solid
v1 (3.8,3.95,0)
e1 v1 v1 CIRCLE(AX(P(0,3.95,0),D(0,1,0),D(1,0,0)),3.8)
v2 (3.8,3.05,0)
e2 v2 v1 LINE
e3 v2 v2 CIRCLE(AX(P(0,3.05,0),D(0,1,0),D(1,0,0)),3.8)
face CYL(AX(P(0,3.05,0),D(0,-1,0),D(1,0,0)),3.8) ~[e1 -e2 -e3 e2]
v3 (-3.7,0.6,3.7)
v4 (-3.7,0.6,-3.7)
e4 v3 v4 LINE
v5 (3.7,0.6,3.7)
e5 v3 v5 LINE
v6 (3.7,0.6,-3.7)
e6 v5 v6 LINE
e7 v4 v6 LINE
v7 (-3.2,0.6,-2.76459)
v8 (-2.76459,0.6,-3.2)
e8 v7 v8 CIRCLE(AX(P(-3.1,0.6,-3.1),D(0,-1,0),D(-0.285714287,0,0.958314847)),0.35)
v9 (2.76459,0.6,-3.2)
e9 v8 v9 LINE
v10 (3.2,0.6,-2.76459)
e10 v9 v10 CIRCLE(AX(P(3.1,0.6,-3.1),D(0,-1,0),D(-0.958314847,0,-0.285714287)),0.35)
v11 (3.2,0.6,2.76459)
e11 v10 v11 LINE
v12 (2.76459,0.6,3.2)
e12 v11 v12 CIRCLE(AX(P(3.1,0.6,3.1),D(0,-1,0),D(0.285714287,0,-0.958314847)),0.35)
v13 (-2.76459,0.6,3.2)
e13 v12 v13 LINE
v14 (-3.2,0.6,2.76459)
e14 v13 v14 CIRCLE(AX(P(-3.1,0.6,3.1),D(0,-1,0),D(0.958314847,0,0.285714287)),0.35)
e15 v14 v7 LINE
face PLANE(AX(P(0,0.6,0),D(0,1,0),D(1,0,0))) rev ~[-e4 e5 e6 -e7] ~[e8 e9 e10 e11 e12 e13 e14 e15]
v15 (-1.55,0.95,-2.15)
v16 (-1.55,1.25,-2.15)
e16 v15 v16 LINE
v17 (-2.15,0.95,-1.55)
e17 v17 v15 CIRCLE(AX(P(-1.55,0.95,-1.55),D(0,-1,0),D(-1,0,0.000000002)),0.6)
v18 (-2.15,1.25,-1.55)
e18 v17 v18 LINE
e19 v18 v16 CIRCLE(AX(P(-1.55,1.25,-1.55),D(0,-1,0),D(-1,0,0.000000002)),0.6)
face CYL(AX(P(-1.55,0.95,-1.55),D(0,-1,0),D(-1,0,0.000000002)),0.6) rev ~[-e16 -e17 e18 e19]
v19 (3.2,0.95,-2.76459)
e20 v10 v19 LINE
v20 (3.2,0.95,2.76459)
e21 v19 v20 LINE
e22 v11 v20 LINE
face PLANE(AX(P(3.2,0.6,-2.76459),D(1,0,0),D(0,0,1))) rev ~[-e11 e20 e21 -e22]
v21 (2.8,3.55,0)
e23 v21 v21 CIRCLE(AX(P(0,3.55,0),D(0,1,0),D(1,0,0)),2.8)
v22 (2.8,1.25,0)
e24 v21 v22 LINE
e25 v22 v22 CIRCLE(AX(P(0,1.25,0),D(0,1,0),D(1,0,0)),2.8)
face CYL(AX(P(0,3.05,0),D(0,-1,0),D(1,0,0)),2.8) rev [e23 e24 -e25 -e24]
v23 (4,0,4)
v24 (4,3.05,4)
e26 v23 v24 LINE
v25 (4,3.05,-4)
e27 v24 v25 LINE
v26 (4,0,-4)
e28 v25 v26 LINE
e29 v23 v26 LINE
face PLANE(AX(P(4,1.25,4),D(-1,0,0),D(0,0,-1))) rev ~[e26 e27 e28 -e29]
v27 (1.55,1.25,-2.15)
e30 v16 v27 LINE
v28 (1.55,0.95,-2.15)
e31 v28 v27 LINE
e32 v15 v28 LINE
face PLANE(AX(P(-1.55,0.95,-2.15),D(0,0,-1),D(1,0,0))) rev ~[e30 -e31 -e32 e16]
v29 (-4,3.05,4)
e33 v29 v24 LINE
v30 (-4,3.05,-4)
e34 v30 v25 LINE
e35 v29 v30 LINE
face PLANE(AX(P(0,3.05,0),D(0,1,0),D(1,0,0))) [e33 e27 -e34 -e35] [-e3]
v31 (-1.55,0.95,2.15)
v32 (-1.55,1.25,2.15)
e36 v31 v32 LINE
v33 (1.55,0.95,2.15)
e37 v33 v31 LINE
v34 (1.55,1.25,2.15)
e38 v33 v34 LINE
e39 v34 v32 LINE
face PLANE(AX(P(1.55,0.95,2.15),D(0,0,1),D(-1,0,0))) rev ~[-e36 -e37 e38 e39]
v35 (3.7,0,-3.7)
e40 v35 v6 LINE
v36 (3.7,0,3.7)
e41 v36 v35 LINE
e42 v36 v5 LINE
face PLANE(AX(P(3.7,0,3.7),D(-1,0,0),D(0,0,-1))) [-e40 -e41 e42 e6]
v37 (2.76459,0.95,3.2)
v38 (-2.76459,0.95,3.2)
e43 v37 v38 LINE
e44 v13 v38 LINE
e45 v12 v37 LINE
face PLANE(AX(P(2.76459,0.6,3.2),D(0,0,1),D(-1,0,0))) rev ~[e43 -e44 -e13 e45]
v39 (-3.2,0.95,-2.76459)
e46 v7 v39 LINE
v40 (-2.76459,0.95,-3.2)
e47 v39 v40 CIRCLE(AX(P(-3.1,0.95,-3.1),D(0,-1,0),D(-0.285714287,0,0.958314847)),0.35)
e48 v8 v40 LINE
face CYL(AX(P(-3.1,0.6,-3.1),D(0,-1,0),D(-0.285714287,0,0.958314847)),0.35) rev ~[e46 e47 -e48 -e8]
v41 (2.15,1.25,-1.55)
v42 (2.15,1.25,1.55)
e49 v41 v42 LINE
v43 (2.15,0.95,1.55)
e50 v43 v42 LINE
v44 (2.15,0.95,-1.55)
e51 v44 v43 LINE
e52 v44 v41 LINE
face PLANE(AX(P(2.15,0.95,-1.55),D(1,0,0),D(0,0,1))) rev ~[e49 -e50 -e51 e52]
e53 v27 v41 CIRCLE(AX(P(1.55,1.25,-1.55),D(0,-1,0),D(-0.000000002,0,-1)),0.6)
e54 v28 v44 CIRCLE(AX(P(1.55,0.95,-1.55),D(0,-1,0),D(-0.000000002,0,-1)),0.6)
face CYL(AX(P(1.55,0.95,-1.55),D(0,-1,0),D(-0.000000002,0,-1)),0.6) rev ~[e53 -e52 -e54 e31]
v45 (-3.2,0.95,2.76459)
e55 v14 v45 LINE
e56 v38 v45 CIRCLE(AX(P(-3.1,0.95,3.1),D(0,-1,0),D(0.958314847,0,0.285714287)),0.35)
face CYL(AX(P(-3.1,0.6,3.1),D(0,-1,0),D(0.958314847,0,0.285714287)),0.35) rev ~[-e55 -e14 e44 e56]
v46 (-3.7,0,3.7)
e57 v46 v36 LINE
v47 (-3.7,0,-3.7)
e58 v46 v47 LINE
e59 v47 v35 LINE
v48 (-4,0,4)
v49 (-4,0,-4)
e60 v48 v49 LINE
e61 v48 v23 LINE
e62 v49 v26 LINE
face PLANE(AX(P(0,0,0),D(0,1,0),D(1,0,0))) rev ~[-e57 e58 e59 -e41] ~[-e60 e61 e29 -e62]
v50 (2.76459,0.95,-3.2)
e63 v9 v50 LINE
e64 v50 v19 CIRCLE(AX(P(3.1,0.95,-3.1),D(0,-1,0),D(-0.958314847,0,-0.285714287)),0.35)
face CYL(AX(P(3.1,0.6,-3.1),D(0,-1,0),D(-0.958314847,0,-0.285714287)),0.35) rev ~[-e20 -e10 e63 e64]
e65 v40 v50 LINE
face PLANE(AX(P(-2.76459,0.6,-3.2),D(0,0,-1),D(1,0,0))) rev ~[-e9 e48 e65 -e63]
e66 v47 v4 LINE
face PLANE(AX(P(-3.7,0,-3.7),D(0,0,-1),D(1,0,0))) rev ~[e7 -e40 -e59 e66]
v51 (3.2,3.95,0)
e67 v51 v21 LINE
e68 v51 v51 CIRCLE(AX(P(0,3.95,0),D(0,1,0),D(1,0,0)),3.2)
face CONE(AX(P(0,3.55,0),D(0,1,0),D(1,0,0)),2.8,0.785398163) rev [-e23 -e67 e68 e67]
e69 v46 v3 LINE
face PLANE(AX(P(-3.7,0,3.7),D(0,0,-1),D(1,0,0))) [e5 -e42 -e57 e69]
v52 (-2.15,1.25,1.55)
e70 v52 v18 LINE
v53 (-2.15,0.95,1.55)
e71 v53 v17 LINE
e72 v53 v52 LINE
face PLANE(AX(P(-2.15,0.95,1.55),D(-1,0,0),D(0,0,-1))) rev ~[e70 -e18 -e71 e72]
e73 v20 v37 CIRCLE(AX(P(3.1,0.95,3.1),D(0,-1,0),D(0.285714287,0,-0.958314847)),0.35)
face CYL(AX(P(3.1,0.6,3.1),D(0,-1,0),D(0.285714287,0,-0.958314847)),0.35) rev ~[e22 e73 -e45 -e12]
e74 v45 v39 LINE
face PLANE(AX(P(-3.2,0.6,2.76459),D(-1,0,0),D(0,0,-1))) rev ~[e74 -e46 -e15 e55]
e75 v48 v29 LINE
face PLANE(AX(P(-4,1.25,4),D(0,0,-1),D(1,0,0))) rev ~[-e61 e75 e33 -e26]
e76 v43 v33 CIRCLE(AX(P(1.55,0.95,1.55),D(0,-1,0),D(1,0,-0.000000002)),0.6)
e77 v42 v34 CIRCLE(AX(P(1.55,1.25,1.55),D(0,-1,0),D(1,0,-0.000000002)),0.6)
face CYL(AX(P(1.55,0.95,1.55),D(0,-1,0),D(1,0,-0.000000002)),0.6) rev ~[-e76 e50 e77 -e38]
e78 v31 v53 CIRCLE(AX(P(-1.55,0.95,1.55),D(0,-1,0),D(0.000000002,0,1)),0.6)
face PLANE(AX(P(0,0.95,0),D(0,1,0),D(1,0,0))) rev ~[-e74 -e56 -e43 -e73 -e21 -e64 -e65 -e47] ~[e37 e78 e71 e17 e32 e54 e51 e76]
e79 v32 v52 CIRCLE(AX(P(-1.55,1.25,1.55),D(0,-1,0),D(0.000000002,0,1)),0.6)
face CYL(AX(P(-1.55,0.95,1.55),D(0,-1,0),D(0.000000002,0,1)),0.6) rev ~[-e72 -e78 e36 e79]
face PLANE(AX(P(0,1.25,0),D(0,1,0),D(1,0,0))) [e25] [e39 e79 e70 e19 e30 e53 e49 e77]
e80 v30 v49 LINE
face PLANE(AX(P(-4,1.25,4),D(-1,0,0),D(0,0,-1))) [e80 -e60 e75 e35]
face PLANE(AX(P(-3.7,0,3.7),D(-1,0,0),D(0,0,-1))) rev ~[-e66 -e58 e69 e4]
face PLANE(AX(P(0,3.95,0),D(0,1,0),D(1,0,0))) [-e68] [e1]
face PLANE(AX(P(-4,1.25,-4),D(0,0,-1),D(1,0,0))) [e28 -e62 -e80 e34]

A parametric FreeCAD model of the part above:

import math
import FreeCAD as App
import Part
import Sketcher
Q = App.Units.Quantity


def edges_at(feature, points):
    """Names of the edges that pass closest to the given points."""
    edges = feature.Shape.Edges
    near = lambda p: min(range(len(edges)), key=lambda i: edges[i].distToShape(Part.Vertex(*p))[0])
    return sorted({f"Edge{near(p) + 1}" for p in points})


def add_polygon(sketch, points):
    """Adds a closed chain of lines whose ends are joined by coincident constraints."""
    first, n = sketch.GeometryCount, len(points)
    for a, b in zip(points, points[1:] + points[:1]):
        sketch.addGeometry(Part.LineSegment(App.Vector(*a, 0), App.Vector(*b, 0)), False)
    for i in range(n):
        sketch.addConstraint(Sketcher.Constraint("Coincident", first + i, 2, first + (i + 1) % n, 1))

doc = App.newDocument("Part")
body = doc.addObject("PartDesign::Body", "Body")

sketch1 = body.newObject("Sketcher::SketchObject", "Sketch")
sketch1.AttachmentSupport = (doc.getObject("XZ_Plane"), [""])
sketch1.MapMode = "FlatFace"
add_polygon(sketch1, [(-4, -4), (-4, 4), (4, 4), (4, -4)])
add_polygon(sketch1, [(3.7, 3.7), (-3.7, 3.7), (-3.7, -3.7), (3.7, -3.7)])
sketch1.addConstraint(Sketcher.Constraint("Vertical", 0))
sketch1.addConstraint(Sketcher.Constraint("Horizontal", 1))
sketch1.addConstraint(Sketcher.Constraint("Vertical", 2))
sketch1.addConstraint(Sketcher.Constraint("Horizontal", 3))
sketch1.addConstraint(Sketcher.Constraint("Horizontal", 4))
sketch1.addConstraint(Sketcher.Constraint("Vertical", 5))
sketch1.addConstraint(Sketcher.Constraint("Horizontal", 6))
sketch1.addConstraint(Sketcher.Constraint("Vertical", 7))
sketch1.addConstraint(Sketcher.Constraint("Symmetric", 0, 2, 2, 2, -1, 1))
sketch1.addConstraint(Sketcher.Constraint("Symmetric", 4, 2, 6, 2, -1, 1))
sketch1.addConstraint(Sketcher.Constraint("Equal", 3, 0))
sketch1.addConstraint(Sketcher.Constraint("Equal", 6, 5))
sketch1.addConstraint(Sketcher.Constraint("DistanceX", 1, 1, 1, 2, Q("8 mm")))
sketch1.addConstraint(Sketcher.Constraint("DistanceX", 4, 2, 4, 1, Q("7.4 mm")))
pad1 = body.newObject("PartDesign::Pad", "Pad")
pad1.Profile = sketch1
pad1.Length = 0.6
pad1.Reversed = True

sketch2 = body.newObject("Sketcher::SketchObject", "Sketch001")
sketch2.AttachmentSupport = (doc.getObject("XZ_Plane"), [""])
sketch2.MapMode = "FlatFace"
sketch2.AttachmentOffset = App.Placement(App.Vector(0, 0, -0.6), App.Rotation())
add_polygon(sketch2, [(-4, -4), (-4, 4), (4, 4), (4, -4)])
sketch2.addGeometry(Part.ArcOfCircle(Part.Circle(App.Vector(-3.1, -3.1, 0), App.Vector(0, 0, 1), 0.35), math.radians(106.60155), math.radians(343.39845)), False)
sketch2.addGeometry(Part.LineSegment(App.Vector(-2.76459, -3.2, 0), App.Vector(2.76459, -3.2, 0)), False)
sketch2.addGeometry(Part.ArcOfCircle(Part.Circle(App.Vector(3.1, -3.1, 0), App.Vector(0, 0, 1), 0.35), math.radians(-163.39845), math.radians(73.39845)), False)
sketch2.addGeometry(Part.LineSegment(App.Vector(3.2, -2.76459, 0), App.Vector(3.2, 2.76459, 0)), False)
sketch2.addGeometry(Part.ArcOfCircle(Part.Circle(App.Vector(3.1, 3.1, 0), App.Vector(0, 0, 1), 0.35), math.radians(-73.39845), math.radians(163.39845)), False)
sketch2.addGeometry(Part.LineSegment(App.Vector(2.76459, 3.2, 0), App.Vector(-2.76459, 3.2, 0)), False)
sketch2.addGeometry(Part.ArcOfCircle(Part.Circle(App.Vector(-3.1, 3.1, 0), App.Vector(0, 0, 1), 0.35), math.radians(16.60155), math.radians(253.39845)), False)
sketch2.addGeometry(Part.LineSegment(App.Vector(-3.2, 2.76459, 0), App.Vector(-3.2, -2.76459, 0)), False)
sketch2.addConstraint(Sketcher.Constraint("Coincident", 4, 2, 5, 1))
sketch2.addConstraint(Sketcher.Constraint("Coincident", 5, 2, 6, 1))
sketch2.addConstraint(Sketcher.Constraint("Coincident", 6, 2, 7, 1))
sketch2.addConstraint(Sketcher.Constraint("Coincident", 7, 2, 8, 1))
sketch2.addConstraint(Sketcher.Constraint("Coincident", 8, 2, 9, 1))
sketch2.addConstraint(Sketcher.Constraint("Coincident", 9, 2, 10, 1))
sketch2.addConstraint(Sketcher.Constraint("Coincident", 10, 2, 11, 1))
sketch2.addConstraint(Sketcher.Constraint("Coincident", 11, 2, 4, 1))
sketch2.addConstraint(Sketcher.Constraint("Vertical", 0))
sketch2.addConstraint(Sketcher.Constraint("Horizontal", 1))
sketch2.addConstraint(Sketcher.Constraint("Vertical", 2))
sketch2.addConstraint(Sketcher.Constraint("Horizontal", 3))
sketch2.addConstraint(Sketcher.Constraint("Horizontal", 5))
sketch2.addConstraint(Sketcher.Constraint("Vertical", 7))
sketch2.addConstraint(Sketcher.Constraint("Horizontal", 9))
sketch2.addConstraint(Sketcher.Constraint("Vertical", 11))
sketch2.addConstraint(Sketcher.Constraint("Equal", 4, 6))
sketch2.addConstraint(Sketcher.Constraint("Equal", 6, 8))
sketch2.addConstraint(Sketcher.Constraint("Equal", 8, 10))
sketch2.addConstraint(Sketcher.Constraint("Symmetric", 4, 3, 8, 3, -1, 1))
sketch2.addConstraint(Sketcher.Constraint("Symmetric", 6, 3, 10, 3, -1, 1))
sketch2.addConstraint(Sketcher.Constraint("Symmetric", 0, 2, 2, 2, -1, 1))
sketch2.addConstraint(Sketcher.Constraint("Symmetric", 4, 3, 6, 3, -2))
sketch2.addConstraint(Sketcher.Constraint("Horizontal", 7, 2, 10, 2))
sketch2.addConstraint(Sketcher.Constraint("Vertical", 5, 2, 8, 2))
sketch2.addConstraint(Sketcher.Constraint("Equal", 3, 0))
sketch2.addConstraint(Sketcher.Constraint("Equal", 9, 7))
sketch2.addConstraint(Sketcher.Constraint("DistanceX", 1, 1, 1, 2, Q("8 mm")))
sketch2.addConstraint(Sketcher.Constraint("Radius", 4, Q("0.35 mm")))
sketch2.addConstraint(Sketcher.Constraint("DistanceX", 4, 3, -1, 1, Q("3.1 mm")))
sketch2.addConstraint(Sketcher.Constraint("DistanceY", 4, 3, -1, 1, Q("3.1 mm")))
sketch2.addConstraint(Sketcher.Constraint("DistanceY", 4, 2, -1, 1, Q("3.2 mm")))
pad2 = body.newObject("PartDesign::Pad", "Pad001")
pad2.Profile = sketch2
pad2.Length = 0.35
pad2.Reversed = True

sketch3 = body.newObject("Sketcher::SketchObject", "Sketch002")
sketch3.AttachmentSupport = (doc.getObject("XZ_Plane"), [""])
sketch3.MapMode = "FlatFace"
sketch3.AttachmentOffset = App.Placement(App.Vector(0, 0, -0.95), App.Rotation())
add_polygon(sketch3, [(-4, -4), (-4, 4), (4, 4), (4, -4)])
sketch3.addGeometry(Part.ArcOfCircle(Part.Circle(App.Vector(-1.55, -1.55, 0), App.Vector(0, 0, 1), 0.6), math.radians(180), math.radians(270)), False)
sketch3.addGeometry(Part.LineSegment(App.Vector(-1.55, -2.15, 0), App.Vector(1.55, -2.15, 0)), False)
sketch3.addGeometry(Part.ArcOfCircle(Part.Circle(App.Vector(1.55, -1.55, 0), App.Vector(0, 0, 1), 0.6), math.radians(-90), math.radians(0)), False)
sketch3.addGeometry(Part.LineSegment(App.Vector(2.15, -1.55, 0), App.Vector(2.15, 1.55, 0)), False)
sketch3.addGeometry(Part.ArcOfCircle(Part.Circle(App.Vector(1.55, 1.55, 0), App.Vector(0, 0, 1), 0.6), math.radians(0), math.radians(90)), False)
sketch3.addGeometry(Part.LineSegment(App.Vector(1.55, 2.15, 0), App.Vector(-1.55, 2.15, 0)), False)
sketch3.addGeometry(Part.ArcOfCircle(Part.Circle(App.Vector(-1.55, 1.55, 0), App.Vector(0, 0, 1), 0.6), math.radians(90), math.radians(180)), False)
sketch3.addGeometry(Part.LineSegment(App.Vector(-2.15, 1.55, 0), App.Vector(-2.15, -1.55, 0)), False)
sketch3.addConstraint(Sketcher.Constraint("Tangent", 4, 2, 5, 1))
sketch3.addConstraint(Sketcher.Constraint("Tangent", 5, 2, 6, 1))
sketch3.addConstraint(Sketcher.Constraint("Tangent", 6, 2, 7, 1))
sketch3.addConstraint(Sketcher.Constraint("Tangent", 7, 2, 8, 1))
sketch3.addConstraint(Sketcher.Constraint("Tangent", 8, 2, 9, 1))
sketch3.addConstraint(Sketcher.Constraint("Tangent", 9, 2, 10, 1))
sketch3.addConstraint(Sketcher.Constraint("Tangent", 10, 2, 11, 1))
sketch3.addConstraint(Sketcher.Constraint("Tangent", 11, 2, 4, 1))
sketch3.addConstraint(Sketcher.Constraint("Vertical", 0))
sketch3.addConstraint(Sketcher.Constraint("Horizontal", 1))
sketch3.addConstraint(Sketcher.Constraint("Vertical", 2))
sketch3.addConstraint(Sketcher.Constraint("Horizontal", 3))
sketch3.addConstraint(Sketcher.Constraint("Horizontal", 5))
sketch3.addConstraint(Sketcher.Constraint("Vertical", 7))
sketch3.addConstraint(Sketcher.Constraint("Horizontal", 9))
sketch3.addConstraint(Sketcher.Constraint("Vertical", 11))
sketch3.addConstraint(Sketcher.Constraint("Equal", 4, 6))
sketch3.addConstraint(Sketcher.Constraint("Equal", 6, 8))
sketch3.addConstraint(Sketcher.Constraint("Equal", 8, 10))
sketch3.addConstraint(Sketcher.Constraint("Symmetric", 4, 3, 8, 3, -1, 1))
sketch3.addConstraint(Sketcher.Constraint("Symmetric", 0, 2, 2, 2, -1, 1))
sketch3.addConstraint(Sketcher.Constraint("Equal", 3, 0))
sketch3.addConstraint(Sketcher.Constraint("Equal", 9, 7))
sketch3.addConstraint(Sketcher.Constraint("Radius", 4, Q("0.6 mm")))
sketch3.addConstraint(Sketcher.Constraint("DistanceX", 1, 1, 1, 2, Q("8 mm")))
sketch3.addConstraint(Sketcher.Constraint("DistanceX", 5, 1, 5, 2, Q("3.1 mm")))
pad3 = body.newObject("PartDesign::Pad", "Pad002")
pad3.Profile = sketch3
pad3.Length = 0.3
pad3.Reversed = True

sketch4 = body.newObject("Sketcher::SketchObject", "Sketch003")
sketch4.AttachmentSupport = (doc.getObject("XZ_Plane"), [""])
sketch4.MapMode = "FlatFace"
sketch4.AttachmentOffset = App.Placement(App.Vector(0, 0, -1.25), App.Rotation())
add_polygon(sketch4, [(-4, -4), (-4, 4), (4, 4), (4, -4)])
sketch4.addGeometry(Part.Circle(App.Vector(0, 0, 0), App.Vector(0, 0, 1), 2.8), False)
sketch4.addConstraint(Sketcher.Constraint("Vertical", 0))
sketch4.addConstraint(Sketcher.Constraint("Horizontal", 1))
sketch4.addConstraint(Sketcher.Constraint("Vertical", 2))
sketch4.addConstraint(Sketcher.Constraint("Horizontal", 3))
sketch4.addConstraint(Sketcher.Constraint("Coincident", 4, 3, -1, 1))
sketch4.addConstraint(Sketcher.Constraint("Symmetric", 0, 2, 2, 2, -1, 1))
sketch4.addConstraint(Sketcher.Constraint("Equal", 3, 0))
sketch4.addConstraint(Sketcher.Constraint("Diameter", 4, Q("5.6 mm")))
sketch4.addConstraint(Sketcher.Constraint("DistanceX", 1, 1, 1, 2, Q("8 mm")))
pad4 = body.newObject("PartDesign::Pad", "Pad003")
pad4.Profile = sketch4
pad4.Length = 1.8
pad4.Reversed = True

sketch5 = body.newObject("Sketcher::SketchObject", "Sketch004")
sketch5.AttachmentSupport = (doc.getObject("XZ_Plane"), [""])
sketch5.MapMode = "FlatFace"
sketch5.AttachmentOffset = App.Placement(App.Vector(0, 0, -3.05), App.Rotation())
sketch5.addGeometry(Part.Circle(App.Vector(0, 0, 0), App.Vector(0, 0, 1), 3.8), False)
sketch5.addGeometry(Part.Circle(App.Vector(0, 0, 0), App.Vector(0, 0, 1), 2.8), False)
sketch5.addConstraint(Sketcher.Constraint("Coincident", 0, 3, -1, 1))
sketch5.addConstraint(Sketcher.Constraint("Coincident", 1, 3, -1, 1))
sketch5.addConstraint(Sketcher.Constraint("Diameter", 0, Q("7.6 mm")))
sketch5.addConstraint(Sketcher.Constraint("Diameter", 1, Q("5.6 mm")))
pad5 = body.newObject("PartDesign::Pad", "Pad004")
pad5.Profile = sketch5
pad5.Length = 0.9
pad5.Reversed = True
doc.recompute()

chamfer = body.newObject("PartDesign::Chamfer", "Chamfer")
chamfer.Base = (pad5, edges_at(pad5, [(-2.8, 3.95, 0)]))
chamfer.Size = 0.4

doc.recompute()
